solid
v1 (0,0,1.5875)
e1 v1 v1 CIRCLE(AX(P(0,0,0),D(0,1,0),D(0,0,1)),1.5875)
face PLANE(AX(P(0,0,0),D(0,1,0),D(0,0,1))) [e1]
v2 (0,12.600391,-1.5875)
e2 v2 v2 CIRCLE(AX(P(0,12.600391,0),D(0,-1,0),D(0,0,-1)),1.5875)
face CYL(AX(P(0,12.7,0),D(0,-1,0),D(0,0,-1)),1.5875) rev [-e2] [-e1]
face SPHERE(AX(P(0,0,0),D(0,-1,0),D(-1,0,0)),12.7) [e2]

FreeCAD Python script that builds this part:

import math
import FreeCAD as App
import Part
import Sketcher

V = App.Vector
Q = App.Units.Quantity

doc = App.newDocument("Part")
body = doc.addObject("PartDesign::Body", "Body")

# Sketch on XY plane
sketch1 = body.newObject("Sketcher::SketchObject", "Sketch")
sketch1.AttachmentSupport = (doc.getObject("XY_Plane"), [""])
sketch1.MapMode = "FlatFace"
sketch1.addGeometry([
    Part.LineSegment(V(0, 13, 0), V(0, -13, 0)),
    Part.ArcOfCircle(Part.Circle(V(0, 0, 0), V(0, 0, 1), 13), math.radians(-90), math.radians(90)),
], False)
sketch1.addConstraint([
    Sketcher.Constraint("Coincident", 0, 1, 1, 2),
    Sketcher.Constraint("Coincident", 1, 1, 0, 2),
    Sketcher.Constraint("Vertical", 0),
    Sketcher.Constraint("Coincident", 1, 3, -1, 1),
    Sketcher.Constraint("PointOnObject", 0, 1, -2),
    Sketcher.Constraint("Radius", 1, Q("0.5 in")),
])
revolution = body.newObject("PartDesign::Revolution", "Revolution")
revolution.Profile = sketch1
revolution.ReferenceAxis = (sketch1, ["V_Axis"])
revolution.Angle = 360

# Sketch on XZ plane
sketch2 = body.newObject("Sketcher::SketchObject", "Sketch001")
sketch2.AttachmentSupport = (doc.getObject("XZ_Plane"), [""])
sketch2.MapMode = "FlatFace"
sketch2.addGeometry(Part.Circle(V(0, 0, 0), V(0, 0, 1), 1.6), False)
sketch2.addConstraint([
    Sketcher.Constraint("Coincident", 0, 3, -1, 1),
    Sketcher.Constraint("Diameter", 0, Q("0.125 in")),
])
pocket1 = body.newObject("PartDesign::Pocket", "Pocket")
pocket1.Profile = sketch2
pocket1.Type = "ThroughAll"

doc.recompute()
